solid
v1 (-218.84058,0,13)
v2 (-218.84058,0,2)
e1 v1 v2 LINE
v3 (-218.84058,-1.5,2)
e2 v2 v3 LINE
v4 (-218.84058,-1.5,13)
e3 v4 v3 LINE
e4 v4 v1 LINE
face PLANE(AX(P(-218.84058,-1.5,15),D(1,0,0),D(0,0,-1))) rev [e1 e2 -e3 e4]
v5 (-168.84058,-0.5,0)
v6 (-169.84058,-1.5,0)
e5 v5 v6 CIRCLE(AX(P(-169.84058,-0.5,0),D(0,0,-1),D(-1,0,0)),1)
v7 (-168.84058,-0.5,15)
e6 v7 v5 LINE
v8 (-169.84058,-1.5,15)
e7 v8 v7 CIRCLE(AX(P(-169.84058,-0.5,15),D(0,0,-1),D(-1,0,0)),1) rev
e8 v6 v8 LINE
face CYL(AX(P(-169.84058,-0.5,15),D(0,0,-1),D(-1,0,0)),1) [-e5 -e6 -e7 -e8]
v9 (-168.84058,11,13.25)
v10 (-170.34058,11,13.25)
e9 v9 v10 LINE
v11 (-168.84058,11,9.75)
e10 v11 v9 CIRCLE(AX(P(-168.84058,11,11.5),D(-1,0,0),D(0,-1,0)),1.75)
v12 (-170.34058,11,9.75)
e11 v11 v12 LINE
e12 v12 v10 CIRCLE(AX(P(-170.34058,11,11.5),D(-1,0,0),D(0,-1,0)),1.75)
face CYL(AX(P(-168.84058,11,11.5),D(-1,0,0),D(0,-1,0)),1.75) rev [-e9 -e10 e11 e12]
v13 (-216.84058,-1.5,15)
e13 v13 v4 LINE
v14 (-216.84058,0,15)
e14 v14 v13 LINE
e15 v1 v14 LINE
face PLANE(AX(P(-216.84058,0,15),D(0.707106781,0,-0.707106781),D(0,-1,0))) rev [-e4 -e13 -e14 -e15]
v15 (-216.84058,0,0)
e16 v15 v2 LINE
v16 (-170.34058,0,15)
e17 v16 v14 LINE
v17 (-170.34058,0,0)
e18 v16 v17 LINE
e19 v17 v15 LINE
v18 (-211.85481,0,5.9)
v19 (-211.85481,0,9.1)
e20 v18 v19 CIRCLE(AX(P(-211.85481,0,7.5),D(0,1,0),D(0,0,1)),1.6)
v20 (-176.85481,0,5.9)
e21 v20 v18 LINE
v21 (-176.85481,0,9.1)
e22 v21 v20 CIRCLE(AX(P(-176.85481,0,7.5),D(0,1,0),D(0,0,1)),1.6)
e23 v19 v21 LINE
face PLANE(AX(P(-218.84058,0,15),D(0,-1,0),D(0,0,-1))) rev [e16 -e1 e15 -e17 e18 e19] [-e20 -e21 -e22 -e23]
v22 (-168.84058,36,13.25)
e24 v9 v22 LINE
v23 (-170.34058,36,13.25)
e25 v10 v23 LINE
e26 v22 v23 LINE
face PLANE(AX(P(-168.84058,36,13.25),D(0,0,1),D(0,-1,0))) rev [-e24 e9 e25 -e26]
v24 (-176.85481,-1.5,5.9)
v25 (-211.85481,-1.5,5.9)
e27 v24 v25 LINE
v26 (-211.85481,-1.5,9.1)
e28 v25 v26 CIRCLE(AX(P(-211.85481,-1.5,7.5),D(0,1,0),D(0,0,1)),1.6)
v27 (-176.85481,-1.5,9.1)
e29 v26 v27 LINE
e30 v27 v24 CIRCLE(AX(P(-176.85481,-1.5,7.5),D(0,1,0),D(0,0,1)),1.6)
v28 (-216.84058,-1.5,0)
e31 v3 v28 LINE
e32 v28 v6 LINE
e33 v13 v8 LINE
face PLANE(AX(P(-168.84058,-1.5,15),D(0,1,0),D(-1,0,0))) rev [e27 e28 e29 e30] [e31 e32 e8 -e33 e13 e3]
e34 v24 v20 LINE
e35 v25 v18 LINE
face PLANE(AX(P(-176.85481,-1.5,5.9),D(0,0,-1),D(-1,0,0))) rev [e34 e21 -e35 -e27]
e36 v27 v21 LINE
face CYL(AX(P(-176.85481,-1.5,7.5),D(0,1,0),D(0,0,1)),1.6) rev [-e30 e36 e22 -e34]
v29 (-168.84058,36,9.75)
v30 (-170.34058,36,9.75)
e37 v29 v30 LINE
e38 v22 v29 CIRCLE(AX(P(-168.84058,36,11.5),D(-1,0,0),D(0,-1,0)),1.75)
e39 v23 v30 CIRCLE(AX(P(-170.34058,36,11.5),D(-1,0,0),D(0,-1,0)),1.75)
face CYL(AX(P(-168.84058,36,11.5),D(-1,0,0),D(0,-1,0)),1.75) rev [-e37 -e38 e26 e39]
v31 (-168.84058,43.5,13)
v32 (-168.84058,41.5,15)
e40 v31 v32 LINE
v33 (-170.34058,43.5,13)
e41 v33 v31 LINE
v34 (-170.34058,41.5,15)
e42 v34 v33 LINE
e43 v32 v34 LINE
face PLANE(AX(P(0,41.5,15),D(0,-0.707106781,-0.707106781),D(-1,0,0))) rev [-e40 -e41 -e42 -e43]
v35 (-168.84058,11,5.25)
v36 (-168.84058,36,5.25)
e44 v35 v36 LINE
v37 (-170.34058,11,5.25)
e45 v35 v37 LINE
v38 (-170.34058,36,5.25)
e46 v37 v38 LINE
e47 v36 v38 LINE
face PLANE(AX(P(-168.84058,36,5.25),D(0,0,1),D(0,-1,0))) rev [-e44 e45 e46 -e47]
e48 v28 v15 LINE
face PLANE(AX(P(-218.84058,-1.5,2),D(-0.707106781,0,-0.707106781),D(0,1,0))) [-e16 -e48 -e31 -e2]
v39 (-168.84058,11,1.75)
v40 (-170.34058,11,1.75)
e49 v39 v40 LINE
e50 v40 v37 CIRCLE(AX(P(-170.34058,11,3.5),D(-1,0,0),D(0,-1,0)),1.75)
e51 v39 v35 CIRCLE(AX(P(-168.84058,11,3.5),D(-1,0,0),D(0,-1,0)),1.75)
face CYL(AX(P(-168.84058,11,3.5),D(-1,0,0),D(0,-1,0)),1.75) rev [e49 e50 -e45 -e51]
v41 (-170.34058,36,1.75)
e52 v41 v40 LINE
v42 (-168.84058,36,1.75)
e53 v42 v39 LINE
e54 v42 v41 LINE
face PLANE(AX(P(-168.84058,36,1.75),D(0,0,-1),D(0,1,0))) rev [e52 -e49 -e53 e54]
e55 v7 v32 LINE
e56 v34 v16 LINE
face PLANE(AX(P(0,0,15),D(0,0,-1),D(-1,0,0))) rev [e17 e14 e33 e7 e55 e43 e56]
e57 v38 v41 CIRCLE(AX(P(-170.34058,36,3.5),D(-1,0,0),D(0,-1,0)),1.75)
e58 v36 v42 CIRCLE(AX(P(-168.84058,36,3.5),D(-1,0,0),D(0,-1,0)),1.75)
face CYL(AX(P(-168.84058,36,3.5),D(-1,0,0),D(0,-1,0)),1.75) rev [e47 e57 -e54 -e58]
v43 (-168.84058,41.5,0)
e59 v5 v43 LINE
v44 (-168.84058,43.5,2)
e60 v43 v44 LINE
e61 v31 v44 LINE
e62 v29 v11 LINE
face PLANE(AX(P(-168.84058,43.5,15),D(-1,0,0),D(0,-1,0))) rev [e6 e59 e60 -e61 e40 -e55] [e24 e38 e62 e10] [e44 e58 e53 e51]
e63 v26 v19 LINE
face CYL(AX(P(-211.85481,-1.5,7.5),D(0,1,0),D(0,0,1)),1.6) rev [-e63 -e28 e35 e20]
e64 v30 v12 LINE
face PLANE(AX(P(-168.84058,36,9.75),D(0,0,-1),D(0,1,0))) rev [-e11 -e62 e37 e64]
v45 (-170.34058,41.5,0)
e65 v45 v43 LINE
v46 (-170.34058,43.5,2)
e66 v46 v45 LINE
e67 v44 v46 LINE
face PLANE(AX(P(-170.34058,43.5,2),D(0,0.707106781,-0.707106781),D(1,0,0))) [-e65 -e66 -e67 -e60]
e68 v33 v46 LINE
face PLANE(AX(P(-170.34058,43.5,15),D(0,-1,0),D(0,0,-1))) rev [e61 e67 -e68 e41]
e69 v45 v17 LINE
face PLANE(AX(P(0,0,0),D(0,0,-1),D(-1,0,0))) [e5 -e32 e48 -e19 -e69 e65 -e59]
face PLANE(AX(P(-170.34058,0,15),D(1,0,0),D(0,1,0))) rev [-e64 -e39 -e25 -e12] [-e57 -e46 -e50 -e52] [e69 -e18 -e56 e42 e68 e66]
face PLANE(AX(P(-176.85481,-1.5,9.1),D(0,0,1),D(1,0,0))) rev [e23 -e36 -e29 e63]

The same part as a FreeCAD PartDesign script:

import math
import FreeCAD as App
import Part
import Sketcher


def edges_at(feature, points):
    """Names of the edges that pass closest to the given points."""
    edges = feature.Shape.Edges
    near = lambda p: min(range(len(edges)), key=lambda i: edges[i].distToShape(Part.Vertex(*p))[0])
    return sorted({f"Edge{near(p) + 1}" for p in points})


def add_polygon(sketch, points):
    """Adds a closed chain of lines whose ends are joined by coincident constraints."""
    first, n = sketch.GeometryCount, len(points)
    for a, b in zip(points, points[1:] + points[:1]):
        sketch.addGeometry(Part.LineSegment(App.Vector(*a, 0), App.Vector(*b, 0)), False)
    for i in range(n):
        sketch.addConstraint(Sketcher.Constraint("Coincident", first + i, 2, first + (i + 1) % n, 1))

doc = App.newDocument("Part")
params = doc.addObject("Spreadsheet::Sheet", "Params")
for row, (alias, value) in enumerate([
    ("sketch1_width", "50 mm"),
    ("sketch1_height", "45 mm"),
    ("sketch1_width2", "48.5 mm"),
    ("pad1_length", "15 mm"),
    ("sketch2_radius", "1.6 mm"),
    ("sketch2_width", "35 mm"),
    ("sketch3_width", "25 mm"),
    ("sketch3_radius", "1.75 mm"),
    ("chamfer_size", "2 mm"),
    ("fillet_radius", "1 mm"),
], start=1):
    params.set(f"A{row}", alias)
    params.set(f"B{row}", "=" + value)
    params.setAlias(f"B{row}", alias)

body = doc.addObject("PartDesign::Body", "Body")

# Sketch on XY plane
sketch1 = body.newObject("Sketcher::SketchObject", "Sketch")
sketch1.AttachmentSupport = (doc.getObject("XY_Plane"), [""])
sketch1.MapMode = "FlatFace"
add_polygon(sketch1, [(-170.3, 0), (-218.8, 0), (-218.8, -1.5), (-168.8, -1.5), (-168.8, 43.5), (-170.3, 43.5)])  # lines 0-5
sketch1.addConstraint([
    Sketcher.Constraint("Horizontal", 0),
    Sketcher.Constraint("Vertical", 1),
    Sketcher.Constraint("Horizontal", 2),
    Sketcher.Constraint("Vertical", 3),
    Sketcher.Constraint("Horizontal", 4),
    Sketcher.Constraint("Vertical", 5),
    Sketcher.Constraint("PointOnObject", 0, 2, -1),
    Sketcher.Constraint("Equal", 4, 1),
    Sketcher.Constraint("DistanceX", 2, 1, 2, 2, 50.0),
    Sketcher.Constraint("DistanceY", 3, 1, 3, 2, 45.0),
    Sketcher.Constraint("DistanceX", 0, 2, 0, 1, 48.5),
    Sketcher.Constraint("DistanceX", 0, 2, -1, 1, 218.84058),
])
sketch1.setExpression("Constraints[14]", "Params.sketch1_width")
sketch1.setExpression("Constraints[15]", "Params.sketch1_height")
sketch1.setExpression("Constraints[16]", "Params.sketch1_width2")
pad1 = body.newObject("PartDesign::Pad", "Pad")
pad1.Profile = sketch1
pad1.setExpression("Length", "Params.pad1_length")

# Sketch on XZ plane
sketch2 = body.newObject("Sketcher::SketchObject", "Sketch001")
sketch2.AttachmentSupport = (doc.getObject("XZ_Plane"), [""])
sketch2.MapMode = "FlatFace"
sketch2.addGeometry([
    Part.LineSegment(App.Vector(-211.9, 9.1, 0), App.Vector(-176.9, 9.1, 0)),
    Part.ArcOfCircle(Part.Circle(App.Vector(-176.9, 7.5, 0), App.Vector(0, 0, 1), 1.6), math.radians(-90), math.radians(90)),
    Part.LineSegment(App.Vector(-176.9, 5.9, 0), App.Vector(-211.9, 5.9, 0)),
    Part.ArcOfCircle(Part.Circle(App.Vector(-211.9, 7.5, 0), App.Vector(0, 0, 1), 1.6), math.radians(90), math.radians(270)),
], False)
sketch2.addConstraint([
    Sketcher.Constraint("Tangent", 0, 2, 1, 2),
    Sketcher.Constraint("Tangent", 1, 1, 2, 1),
    Sketcher.Constraint("Tangent", 2, 2, 3, 2),
    Sketcher.Constraint("Tangent", 3, 1, 0, 1),
    Sketcher.Constraint("Horizontal", 0),
    Sketcher.Constraint("Horizontal", 2),
    Sketcher.Constraint("Radius", 1, 1.6),
    Sketcher.Constraint("DistanceX", 0, 1, 0, 2, 35.0),
    Sketcher.Constraint("DistanceY", -1, 1, 1, 3, 7.5),
    Sketcher.Constraint("DistanceX", 1, 3, -1, 1, 176.85481),
])
sketch2.setExpression("Constraints[6]", "Params.sketch2_radius")
sketch2.setExpression("Constraints[7]", "Params.sketch2_width")
pocket1 = body.newObject("PartDesign::Pocket", "Pocket")
pocket1.Profile = sketch2
pocket1.Type = "ThroughAll"
pocket1.Reversed = True

# Sketch on YZ plane
sketch3 = body.newObject("Sketcher::SketchObject", "Sketch002")
sketch3.AttachmentSupport = (doc.getObject("YZ_Plane"), [""])
sketch3.MapMode = "FlatFace"
sketch3.AttachmentOffset = App.Placement(App.Vector(0, 0, -170.34058), App.Rotation())
sketch3.addGeometry([
    Part.LineSegment(App.Vector(36, 1.8, 0), App.Vector(11, 1.8, 0)),  # 0
    Part.ArcOfCircle(Part.Circle(App.Vector(11, 3.5, 0), App.Vector(0, 0, 1), 1.8), math.radians(90), math.radians(270)),  # 1
    Part.LineSegment(App.Vector(11, 5.2, 0), App.Vector(36, 5.2, 0)),  # 2
    Part.ArcOfCircle(Part.Circle(App.Vector(36, 3.5, 0), App.Vector(0, 0, 1), 1.8), math.radians(-90), math.radians(90)),  # 3
    Part.LineSegment(App.Vector(36, 9.8, 0), App.Vector(11, 9.8, 0)),  # 4
    Part.ArcOfCircle(Part.Circle(App.Vector(11, 11.5, 0), App.Vector(0, 0, 1), 1.8), math.radians(90), math.radians(270)),  # 5
    Part.LineSegment(App.Vector(11, 13.2, 0), App.Vector(36, 13.2, 0)),  # 6
    Part.ArcOfCircle(Part.Circle(App.Vector(36, 11.5, 0), App.Vector(0, 0, 1), 1.8), math.radians(-90), math.radians(90)),  # 7
], False)
sketch3.addConstraint([
    Sketcher.Constraint("Tangent", 0, 2, 1, 2),
    Sketcher.Constraint("Tangent", 1, 1, 2, 1),
    Sketcher.Constraint("Tangent", 2, 2, 3, 2),
    Sketcher.Constraint("Tangent", 3, 1, 0, 1),
    Sketcher.Constraint("Tangent", 4, 2, 5, 2),
    Sketcher.Constraint("Tangent", 5, 1, 6, 1),
    Sketcher.Constraint("Tangent", 6, 2, 7, 2),
    Sketcher.Constraint("Tangent", 7, 1, 4, 1),
    Sketcher.Constraint("Horizontal", 0),
    Sketcher.Constraint("Horizontal", 2),
    Sketcher.Constraint("Horizontal", 4),
    Sketcher.Constraint("Horizontal", 6),
    Sketcher.Constraint("Equal", 3, 5),
    Sketcher.Constraint("Vertical", 1, 3, 5, 3),
    Sketcher.Constraint("Vertical", 3, 3, 7, 3),
    Sketcher.Constraint("DistanceX", 0, 2, 0, 1, 25.0),
    Sketcher.Constraint("Radius", 1, 1.75),
    Sketcher.Constraint("DistanceX", -1, 1, 1, 3, 11.0),
    Sketcher.Constraint("DistanceY", 1, 3, 5, 3, 8.0),
    Sketcher.Constraint("DistanceY", -1, 1, 1, 3, 3.5),
])
sketch3.setExpression("Constraints[15]", "Params.sketch3_width")
sketch3.setExpression("Constraints[16]", "Params.sketch3_radius")
pocket2 = body.newObject("PartDesign::Pocket", "Pocket001")
pocket2.Profile = sketch3
pocket2.Type = "ThroughAll"
pocket2.Reversed = True
doc.recompute()

chamfer = body.newObject("PartDesign::Chamfer", "Chamfer")
chamfer.Base = (pocket2, edges_at(pocket2, [
    (-169.591, 43.5, 15),
    (-218.841, -0.75, 15),
    (-169.591, 43.5, 0),
    (-218.841, -0.75, 0),
]))
chamfer.setExpression("Size", "Params.chamfer_size")
doc.recompute()

fillet = body.newObject("PartDesign::Fillet", "Fillet")
fillet.Base = (chamfer, edges_at(chamfer, [(-168.841, -1.5, 7.5)]))
fillet.setExpression("Radius", "Params.fillet_radius")

doc.recompute()
